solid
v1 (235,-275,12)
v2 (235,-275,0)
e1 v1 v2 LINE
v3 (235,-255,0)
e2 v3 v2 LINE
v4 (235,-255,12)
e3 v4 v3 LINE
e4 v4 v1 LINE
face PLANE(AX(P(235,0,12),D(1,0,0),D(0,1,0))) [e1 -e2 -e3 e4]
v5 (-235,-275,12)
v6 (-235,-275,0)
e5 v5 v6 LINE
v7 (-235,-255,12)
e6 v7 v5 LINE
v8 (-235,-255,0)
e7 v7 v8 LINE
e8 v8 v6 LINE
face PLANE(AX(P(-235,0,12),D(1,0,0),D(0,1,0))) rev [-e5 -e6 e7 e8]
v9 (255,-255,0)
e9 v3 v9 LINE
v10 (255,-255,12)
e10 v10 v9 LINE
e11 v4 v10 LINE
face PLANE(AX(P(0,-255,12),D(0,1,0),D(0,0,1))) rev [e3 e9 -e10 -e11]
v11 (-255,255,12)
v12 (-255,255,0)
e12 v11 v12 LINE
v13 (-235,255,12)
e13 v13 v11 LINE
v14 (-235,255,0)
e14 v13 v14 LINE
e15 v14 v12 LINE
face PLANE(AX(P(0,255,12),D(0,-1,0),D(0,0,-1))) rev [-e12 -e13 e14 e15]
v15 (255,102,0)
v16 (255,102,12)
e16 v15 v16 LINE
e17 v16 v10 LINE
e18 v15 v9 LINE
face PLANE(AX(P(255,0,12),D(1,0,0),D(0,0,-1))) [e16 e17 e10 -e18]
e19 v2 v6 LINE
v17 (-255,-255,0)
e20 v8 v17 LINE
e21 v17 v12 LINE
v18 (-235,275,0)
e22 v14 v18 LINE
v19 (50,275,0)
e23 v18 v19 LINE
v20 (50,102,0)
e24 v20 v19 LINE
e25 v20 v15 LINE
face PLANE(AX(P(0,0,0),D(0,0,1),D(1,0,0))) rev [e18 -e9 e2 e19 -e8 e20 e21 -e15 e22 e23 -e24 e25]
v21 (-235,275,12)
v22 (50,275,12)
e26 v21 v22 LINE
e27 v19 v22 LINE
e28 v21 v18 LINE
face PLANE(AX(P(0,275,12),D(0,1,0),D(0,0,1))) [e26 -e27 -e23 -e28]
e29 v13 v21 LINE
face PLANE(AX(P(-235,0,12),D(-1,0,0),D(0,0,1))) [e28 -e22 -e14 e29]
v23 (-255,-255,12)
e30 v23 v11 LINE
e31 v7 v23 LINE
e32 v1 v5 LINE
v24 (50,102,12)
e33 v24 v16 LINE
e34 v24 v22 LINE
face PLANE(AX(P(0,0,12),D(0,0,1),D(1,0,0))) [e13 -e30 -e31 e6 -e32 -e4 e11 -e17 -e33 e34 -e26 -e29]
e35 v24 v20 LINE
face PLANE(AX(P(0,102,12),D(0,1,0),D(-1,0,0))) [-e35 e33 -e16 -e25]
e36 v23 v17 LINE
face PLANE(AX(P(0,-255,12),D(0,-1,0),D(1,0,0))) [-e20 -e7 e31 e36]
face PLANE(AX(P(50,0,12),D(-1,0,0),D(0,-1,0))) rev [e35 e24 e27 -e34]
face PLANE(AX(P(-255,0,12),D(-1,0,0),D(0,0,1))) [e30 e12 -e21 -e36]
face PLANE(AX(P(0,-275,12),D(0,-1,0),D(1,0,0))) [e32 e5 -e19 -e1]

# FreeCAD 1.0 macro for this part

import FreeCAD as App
import Part
import Sketcher

V = App.Vector


def add_polygon(sketch, points):
    """Adds a closed chain of lines whose ends are joined by coincident constraints."""
    first, n = sketch.GeometryCount, len(points)
    for a, b in zip(points, points[1:] + points[:1]):
        sketch.addGeometry(Part.LineSegment(App.Vector(*a, 0), App.Vector(*b, 0)), False)
    for i in range(n):
        sketch.addConstraint(Sketcher.Constraint("Coincident", first + i, 2, first + (i + 1) % n, 1))

doc = App.newDocument("Part")
params = doc.addObject("Spreadsheet::Sheet", "Params")
for row, (alias, value) in enumerate([
    ("sketch1_width", "470 mm"),
    ("sketch1_width2", "20 mm"),
    ("sketch1_height", "510 mm"),
    ("pad1_length", "12 mm"),
    ("pocket1_length", "12 mm"),
], start=1):
    params.set(f"A{row}", alias)
    params.set(f"B{row}", "=" + value)
    params.setAlias(f"B{row}", alias)

body = doc.addObject("PartDesign::Body", "Body")

# Sketch on XY plane
sketch1 = body.newObject("Sketcher::SketchObject", "Sketch")
sketch1.AttachmentSupport = (doc.getObject("XY_Plane"), [""])
sketch1.MapMode = "FlatFace"
add_polygon(sketch1, [(235, 255), (235, 275), (-235, 275), (-235, 255), (-255, 255), (-255, -255), (-235, -255), (-235, -275), (235, -275), (235, -255), (255, -255), (255, 255)])  # lines 0-11
sketch1.addConstraint([
    Sketcher.Constraint("Vertical", 0),
    Sketcher.Constraint("Horizontal", 1),
    Sketcher.Constraint("Vertical", 2),
    Sketcher.Constraint("Horizontal", 3),
    Sketcher.Constraint("Vertical", 4),
    Sketcher.Constraint("Horizontal", 5),
    Sketcher.Constraint("Vertical", 6),
    Sketcher.Constraint("Horizontal", 7),
    Sketcher.Constraint("Vertical", 8),
    Sketcher.Constraint("Horizontal", 9),
    Sketcher.Constraint("Vertical", 10),
    Sketcher.Constraint("Horizontal", 11),
    Sketcher.Constraint("Symmetric", 0, 2, 6, 2, -1, 1),
    Sketcher.Constraint("Symmetric", 2, 2, 8, 2, -1, 1),
    Sketcher.Constraint("Symmetric", 4, 2, 10, 2, -1, 1),
    Sketcher.Constraint("Symmetric", 5, 2, 8, 2, -2),
    Sketcher.Constraint("Equal", 11, 0),
    Sketcher.Constraint("DistanceX", 1, 2, 1, 1, 470.0),
    Sketcher.Constraint("DistanceX", 3, 2, 3, 1, 20.0),
    Sketcher.Constraint("DistanceY", 4, 2, 4, 1, 510.0),
])
sketch1.setExpression("Constraints[29]", "Params.sketch1_width")
sketch1.setExpression("Constraints[30]", "Params.sketch1_width2")
sketch1.setExpression("Constraints[31]", "Params.sketch1_height")
pad1 = body.newObject("PartDesign::Pad", "Pad")
pad1.Profile = sketch1
pad1.setExpression("Length", "Params.pad1_length")

# Sketch on XY plane
sketch2 = body.newObject("Sketcher::SketchObject", "Sketch001")
sketch2.AttachmentSupport = (doc.getObject("XY_Plane"), [""])
sketch2.MapMode = "FlatFace"
add_polygon(sketch2, [(50, 309), (365, 309), (365, 102), (50, 102)])  # lines 0-3
sketch2.addConstraint([
    Sketcher.Constraint("Horizontal", 0),
    Sketcher.Constraint("Vertical", 1),
    Sketcher.Constraint("Horizontal", 2),
    Sketcher.Constraint("Vertical", 3),
    Sketcher.Constraint("DistanceY", -1, 1, 1, 2, 102.0),
    Sketcher.Constraint("DistanceX", -1, 1, 2, 2, 50.0),
    Sketcher.Constraint("DistanceY", 1, 2, 1, 1, 206.587411),
    Sketcher.Constraint("DistanceX", 0, 1, 0, 2, 314.697293),
])
pocket1 = body.newObject("PartDesign::Pocket", "Pocket")
pocket1.Profile = sketch2
pocket1.setExpression("Length", "Params.pocket1_length")
pocket1.Reversed = True

doc.recompute()
